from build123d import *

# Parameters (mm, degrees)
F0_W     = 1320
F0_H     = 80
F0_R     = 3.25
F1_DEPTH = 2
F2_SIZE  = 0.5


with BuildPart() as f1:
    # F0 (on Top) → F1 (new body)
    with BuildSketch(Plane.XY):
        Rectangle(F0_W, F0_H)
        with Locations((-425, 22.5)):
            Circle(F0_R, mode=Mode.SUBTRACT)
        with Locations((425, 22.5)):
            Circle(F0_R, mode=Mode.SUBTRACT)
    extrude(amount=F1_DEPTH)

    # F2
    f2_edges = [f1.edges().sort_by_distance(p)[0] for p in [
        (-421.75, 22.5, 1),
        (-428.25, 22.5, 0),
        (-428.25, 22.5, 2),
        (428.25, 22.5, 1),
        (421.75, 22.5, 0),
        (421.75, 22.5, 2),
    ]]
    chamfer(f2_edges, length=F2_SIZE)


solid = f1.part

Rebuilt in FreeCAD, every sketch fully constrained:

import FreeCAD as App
import Part
import Sketcher
from FreeCAD import Vector


def edges_at(feature, points):
    """Names of the edges that pass closest to the given points."""
    edges = feature.Shape.Edges
    near = lambda p: min(range(len(edges)), key=lambda i: edges[i].distToShape(Part.Vertex(*p))[0])
    return sorted({f"Edge{near(p) + 1}" for p in points})


def add_polygon(sketch, points):
    """Adds a closed chain of lines whose ends are joined by coincident constraints."""
    first, n = sketch.GeometryCount, len(points)
    for a, b in zip(points, points[1:] + points[:1]):
        sketch.addGeometry(Part.LineSegment(App.Vector(*a, 0), App.Vector(*b, 0)), False)
    for i in range(n):
        sketch.addConstraint(Sketcher.Constraint("Coincident", first + i, 2, first + (i + 1) % n, 1))

doc = App.newDocument("Part")
body = doc.addObject("PartDesign::Body", "Body")

# Sketch on XY plane
sketch1 = body.newObject("Sketcher::SketchObject", "Sketch")
sketch1.AttachmentSupport = (doc.getObject("XY_Plane"), [""])
sketch1.MapMode = "FlatFace"
add_polygon(sketch1, [(-660, 40), (-660, -40), (660, -40), (660, 40)])  # lines 0-3
sketch1.addGeometry(Part.Circle(Vector(-425, 22.5, 0), Vector(0, 0, 1), 3.2), False)  # 4
sketch1.addGeometry(Part.Circle(Vector(425, 22.5, 0), Vector(0, 0, 1), 3.2), False)  # 5
sketch1.addConstraint([
    Sketcher.Constraint("Vertical", 0),
    Sketcher.Constraint("Horizontal", 1),
    Sketcher.Constraint("Vertical", 2),
    Sketcher.Constraint("Horizontal", 3),
    Sketcher.Constraint("Equal", 4, 5),
    Sketcher.Constraint("Symmetric", 0, 2, 2, 2, -1, 1),
    Sketcher.Constraint("Symmetric", 4, 3, 5, 3, -2),
    Sketcher.Constraint("Diameter", 4, 6.5),
    Sketcher.Constraint("DistanceX", 1, 1, 1, 2, 1320.0),
    Sketcher.Constraint("DistanceY", 0, 2, 0, 1, 80.0),
    Sketcher.Constraint("DistanceX", 4, 3, -1, 1, 425.0),
    Sketcher.Constraint("DistanceY", -1, 1, 4, 3, 22.5),
])
pad1 = body.newObject("PartDesign::Pad", "Pad")
pad1.Profile = sketch1
pad1.Length = 2
doc.recompute()

chamfer = body.newObject("PartDesign::Chamfer", "Chamfer")
chamfer.Base = (pad1, edges_at(pad1, [
    (-421.75, 22.5, 1),
    (-428.25, 22.5, 0),
    (-428.25, 22.5, 2),
    (428.25, 22.5, 1),
    (421.75, 22.5, 0),
    (421.75, 22.5, 2),
]))
chamfer.Size = 0.5

doc.recompute()
